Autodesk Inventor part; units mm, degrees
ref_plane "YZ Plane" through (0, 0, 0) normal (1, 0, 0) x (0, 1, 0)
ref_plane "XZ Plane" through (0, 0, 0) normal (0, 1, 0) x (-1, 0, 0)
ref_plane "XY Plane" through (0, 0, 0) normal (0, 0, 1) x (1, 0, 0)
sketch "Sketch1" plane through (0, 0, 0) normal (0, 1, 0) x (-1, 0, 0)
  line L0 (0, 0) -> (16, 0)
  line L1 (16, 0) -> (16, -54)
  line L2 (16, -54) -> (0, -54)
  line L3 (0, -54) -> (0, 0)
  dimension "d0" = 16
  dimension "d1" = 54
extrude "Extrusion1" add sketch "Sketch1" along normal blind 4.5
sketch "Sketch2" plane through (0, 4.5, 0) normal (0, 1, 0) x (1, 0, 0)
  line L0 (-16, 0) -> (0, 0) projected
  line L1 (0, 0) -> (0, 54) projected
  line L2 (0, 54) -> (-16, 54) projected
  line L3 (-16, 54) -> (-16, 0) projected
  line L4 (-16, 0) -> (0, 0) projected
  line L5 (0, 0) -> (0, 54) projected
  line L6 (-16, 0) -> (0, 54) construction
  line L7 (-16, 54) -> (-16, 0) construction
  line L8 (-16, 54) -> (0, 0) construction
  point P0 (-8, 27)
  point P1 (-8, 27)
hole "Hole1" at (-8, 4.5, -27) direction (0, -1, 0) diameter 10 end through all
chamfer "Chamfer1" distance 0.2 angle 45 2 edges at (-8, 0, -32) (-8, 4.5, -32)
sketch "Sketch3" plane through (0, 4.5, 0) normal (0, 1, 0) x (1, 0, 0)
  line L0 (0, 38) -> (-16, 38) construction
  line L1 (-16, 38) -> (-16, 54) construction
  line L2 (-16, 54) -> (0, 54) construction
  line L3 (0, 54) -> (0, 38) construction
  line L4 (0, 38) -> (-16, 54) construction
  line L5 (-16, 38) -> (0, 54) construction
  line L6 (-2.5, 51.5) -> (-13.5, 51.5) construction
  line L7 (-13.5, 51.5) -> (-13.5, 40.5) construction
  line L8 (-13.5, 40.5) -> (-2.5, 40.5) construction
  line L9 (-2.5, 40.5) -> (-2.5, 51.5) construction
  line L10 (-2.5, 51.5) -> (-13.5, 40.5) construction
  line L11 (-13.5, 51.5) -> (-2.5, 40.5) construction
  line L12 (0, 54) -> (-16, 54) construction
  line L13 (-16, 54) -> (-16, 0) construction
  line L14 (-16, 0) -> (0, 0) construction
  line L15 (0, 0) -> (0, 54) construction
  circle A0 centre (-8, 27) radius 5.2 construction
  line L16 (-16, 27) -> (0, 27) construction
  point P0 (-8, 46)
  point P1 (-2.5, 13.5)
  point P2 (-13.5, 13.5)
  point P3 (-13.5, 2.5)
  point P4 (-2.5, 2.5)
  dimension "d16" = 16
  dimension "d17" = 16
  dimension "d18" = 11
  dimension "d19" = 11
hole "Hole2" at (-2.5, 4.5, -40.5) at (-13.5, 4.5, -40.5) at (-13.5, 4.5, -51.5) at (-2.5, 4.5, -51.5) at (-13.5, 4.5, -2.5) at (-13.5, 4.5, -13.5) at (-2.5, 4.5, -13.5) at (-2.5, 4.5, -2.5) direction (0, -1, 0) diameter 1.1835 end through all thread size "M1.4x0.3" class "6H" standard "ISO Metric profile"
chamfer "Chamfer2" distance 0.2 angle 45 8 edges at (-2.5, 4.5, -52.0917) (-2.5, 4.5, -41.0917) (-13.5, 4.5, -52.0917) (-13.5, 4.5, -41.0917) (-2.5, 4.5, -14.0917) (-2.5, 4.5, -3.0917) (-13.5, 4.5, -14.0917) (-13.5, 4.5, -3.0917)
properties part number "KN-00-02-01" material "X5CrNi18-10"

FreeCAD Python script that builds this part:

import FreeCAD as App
import Part
import Sketcher
Q = App.Units.Quantity


def edges_at(feature, points):
    """Names of the edges that pass closest to the given points."""
    edges = feature.Shape.Edges
    near = lambda p: min(range(len(edges)), key=lambda i: edges[i].distToShape(Part.Vertex(*p))[0])
    return sorted({f"Edge{near(p) + 1}" for p in points})


def add_polygon(sketch, points):
    """Adds a closed chain of lines whose ends are joined by coincident constraints."""
    first, n = sketch.GeometryCount, len(points)
    for a, b in zip(points, points[1:] + points[:1]):
        sketch.addGeometry(Part.LineSegment(App.Vector(*a, 0), App.Vector(*b, 0)), False)
    for i in range(n):
        sketch.addConstraint(Sketcher.Constraint("Coincident", first + i, 2, first + (i + 1) % n, 1))

doc = App.newDocument("Part")
body = doc.addObject("PartDesign::Body", "Body")

# Sketch on XZ plane
sketch1 = body.newObject("Sketcher::SketchObject", "Sketch")
sketch1.AttachmentSupport = (doc.getObject("XZ_Plane"), [""])
sketch1.MapMode = "FlatFace"
add_polygon(sketch1, [(-16, 0), (0, 0), (0, -54), (-16, -54)])  # lines 0-3
sketch1.addConstraint([
    Sketcher.Constraint("Horizontal", 0),
    Sketcher.Constraint("Vertical", 1),
    Sketcher.Constraint("Horizontal", 2),
    Sketcher.Constraint("Vertical", 3),
    Sketcher.Constraint("Coincident", 0, 2, -1, 1),
    Sketcher.Constraint("DistanceX", 0, 1, 0, 2, Q("16 mm")),
    Sketcher.Constraint("DistanceY", 1, 2, 1, 1, Q("54 mm")),
])
pad1 = body.newObject("PartDesign::Pad", "Pad")
pad1.Profile = sketch1
pad1.Length = 4.5
pad1.Reversed = True

# Sketch on XZ plane
sketch2 = body.newObject("Sketcher::SketchObject", "Sketch001")
sketch2.AttachmentSupport = (doc.getObject("XZ_Plane"), [""])
sketch2.MapMode = "FlatFace"
sketch2.AttachmentOffset = App.Placement(App.Vector(0, 0, -4.5), App.Rotation())
sketch2.addGeometry(Part.Circle(App.Vector(-8, -27, 0), App.Vector(0, 0, 1), 5), False)
sketch2.addConstraint([
    Sketcher.Constraint("Diameter", 0, Q("10 mm")),
    Sketcher.Constraint("DistanceX", 0, 3, -1, 1, Q("8 mm")),
    Sketcher.Constraint("DistanceY", 0, 3, -1, 1, Q("27 mm")),
])
doc.recompute()
hole = body.newObject("PartDesign::Hole", "Hole")
hole.Profile = sketch2
hole.ThreadType = "None"
hole.Diameter = 10
hole.DepthType = "ThroughAll"
hole.Reversed = True
doc.recompute()

chamfer = body.newObject("PartDesign::Chamfer", "Chamfer")
chamfer.Base = (hole, edges_at(hole, [(-8, 0, -32), (-8, 4.5, -32)]))
chamfer.Size = 0.2

# Sketch on XZ plane
sketch3 = body.newObject("Sketcher::SketchObject", "Sketch002")
sketch3.AttachmentSupport = (doc.getObject("XZ_Plane"), [""])
sketch3.MapMode = "FlatFace"
sketch3.AttachmentOffset = App.Placement(App.Vector(0, 0, -4.5), App.Rotation())
sketch3.addGeometry([
    Part.Circle(App.Vector(-2.5, -40.5, 0), App.Vector(0, 0, 1), 0.6),  # 0
    Part.Circle(App.Vector(-13.5, -40.5, 0), App.Vector(0, 0, 1), 0.6),  # 1
    Part.Circle(App.Vector(-13.5, -51.5, 0), App.Vector(0, 0, 1), 0.6),  # 2
    Part.Circle(App.Vector(-2.5, -51.5, 0), App.Vector(0, 0, 1), 0.6),  # 3
    Part.Circle(App.Vector(-13.5, -2.5, 0), App.Vector(0, 0, 1), 0.6),  # 4
    Part.Circle(App.Vector(-13.5, -13.5, 0), App.Vector(0, 0, 1), 0.6),  # 5
    Part.Circle(App.Vector(-2.5, -13.5, 0), App.Vector(0, 0, 1), 0.6),  # 6
    Part.Circle(App.Vector(-2.5, -2.5, 0), App.Vector(0, 0, 1), 0.6),  # 7
], False)
sketch3.addConstraint([
    Sketcher.Constraint("Equal", 0, 1),
    Sketcher.Constraint("Equal", 1, 2),
    Sketcher.Constraint("Equal", 2, 3),
    Sketcher.Constraint("Equal", 3, 4),
    Sketcher.Constraint("Equal", 4, 5),
    Sketcher.Constraint("Equal", 5, 6),
    Sketcher.Constraint("Equal", 6, 7),
    Sketcher.Constraint("Horizontal", 0, 3, 1, 3),
    Sketcher.Constraint("Horizontal", 2, 3, 3, 3),
    Sketcher.Constraint("Horizontal", 5, 3, 6, 3),
    Sketcher.Constraint("Horizontal", 4, 3, 7, 3),
    Sketcher.Constraint("Vertical", 1, 3, 2, 3),
    Sketcher.Constraint("Vertical", 0, 3, 3, 3),
    Sketcher.Constraint("Vertical", 2, 3, 4, 3),
    Sketcher.Constraint("Vertical", 4, 3, 5, 3),
    Sketcher.Constraint("Vertical", 3, 3, 6, 3),
    Sketcher.Constraint("Vertical", 6, 3, 7, 3),
    Sketcher.Constraint("DistanceX", 1, 3, 0, 3, Q("11 mm")),
    Sketcher.Constraint("DistanceY", 2, 3, 1, 3, Q("11 mm")),
    Sketcher.Constraint("DistanceY", 1, 3, 4, 3, Q("38 mm")),
    Sketcher.Constraint("DistanceY", 5, 3, 4, 3, Q("11 mm")),
    Sketcher.Constraint("Diameter", 0, Q("1.1835 mm")),
    Sketcher.Constraint("DistanceX", 0, 3, -1, 1, Q("2.5 mm")),
    Sketcher.Constraint("DistanceY", 0, 3, -1, 1, Q("40.5 mm")),
])
doc.recompute()
hole2 = body.newObject("PartDesign::Hole", "Hole001")
hole2.Profile = sketch3
hole2.ThreadType = "None"
hole2.Diameter = 1.1835
hole2.DepthType = "ThroughAll"
hole2.Reversed = True
doc.recompute()

chamfer2 = body.newObject("PartDesign::Chamfer", "Chamfer001")
chamfer2.Base = (hole2, edges_at(hole2, [
    (-2.5, 4.5, -52.092),
    (-2.5, 4.5, -41.092),
    (-13.5, 4.5, -52.092),
    (-13.5, 4.5, -41.092),
    (-2.5, 4.5, -14.092),
    (-2.5, 4.5, -3.092),
    (-13.5, 4.5, -14.092),
    (-13.5, 4.5, -3.092),
]))
chamfer2.Size = 0.2

doc.recompute()
